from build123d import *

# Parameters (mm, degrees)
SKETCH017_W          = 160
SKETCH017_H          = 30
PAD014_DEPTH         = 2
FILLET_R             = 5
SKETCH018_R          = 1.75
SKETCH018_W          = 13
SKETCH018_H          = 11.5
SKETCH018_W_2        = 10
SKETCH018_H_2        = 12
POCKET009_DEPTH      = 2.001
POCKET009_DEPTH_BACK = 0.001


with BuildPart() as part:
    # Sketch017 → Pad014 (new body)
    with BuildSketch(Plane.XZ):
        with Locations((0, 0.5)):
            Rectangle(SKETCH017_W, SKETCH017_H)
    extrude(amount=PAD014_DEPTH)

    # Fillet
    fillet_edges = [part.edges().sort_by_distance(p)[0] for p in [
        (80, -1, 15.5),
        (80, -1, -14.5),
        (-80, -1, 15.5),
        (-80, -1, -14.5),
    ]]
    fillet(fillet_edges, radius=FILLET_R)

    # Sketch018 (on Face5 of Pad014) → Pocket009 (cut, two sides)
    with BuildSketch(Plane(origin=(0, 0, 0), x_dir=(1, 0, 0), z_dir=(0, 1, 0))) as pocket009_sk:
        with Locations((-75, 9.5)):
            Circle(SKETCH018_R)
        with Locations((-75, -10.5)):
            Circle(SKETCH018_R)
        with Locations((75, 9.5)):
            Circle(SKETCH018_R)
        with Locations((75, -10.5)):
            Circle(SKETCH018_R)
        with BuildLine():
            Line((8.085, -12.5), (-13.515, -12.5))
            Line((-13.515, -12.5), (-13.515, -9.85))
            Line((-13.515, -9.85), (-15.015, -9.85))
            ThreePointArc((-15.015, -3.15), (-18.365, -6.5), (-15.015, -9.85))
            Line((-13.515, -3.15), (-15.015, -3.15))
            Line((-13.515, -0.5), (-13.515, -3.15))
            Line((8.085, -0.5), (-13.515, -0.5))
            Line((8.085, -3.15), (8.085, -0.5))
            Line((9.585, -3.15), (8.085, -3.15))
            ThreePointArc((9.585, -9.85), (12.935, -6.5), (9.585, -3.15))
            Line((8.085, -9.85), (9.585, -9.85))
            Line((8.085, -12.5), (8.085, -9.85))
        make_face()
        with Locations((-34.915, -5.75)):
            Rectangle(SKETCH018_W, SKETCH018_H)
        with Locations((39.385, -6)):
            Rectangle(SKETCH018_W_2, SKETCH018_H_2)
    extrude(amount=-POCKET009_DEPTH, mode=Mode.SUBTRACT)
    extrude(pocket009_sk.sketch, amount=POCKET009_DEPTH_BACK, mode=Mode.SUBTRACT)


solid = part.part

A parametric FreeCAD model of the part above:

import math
import FreeCAD as App
import Part
import Sketcher

V = App.Vector
Q = App.Units.Quantity


def edges_at(feature, points):
    """Names of the edges that pass closest to the given points."""
    edges = feature.Shape.Edges
    near = lambda p: min(range(len(edges)), key=lambda i: edges[i].distToShape(Part.Vertex(*p))[0])
    return sorted({f"Edge{near(p) + 1}" for p in points})


def add_polygon(sketch, points):
    """Adds a closed chain of lines whose ends are joined by coincident constraints."""
    first, n = sketch.GeometryCount, len(points)
    for a, b in zip(points, points[1:] + points[:1]):
        sketch.addGeometry(Part.LineSegment(App.Vector(*a, 0), App.Vector(*b, 0)), False)
    for i in range(n):
        sketch.addConstraint(Sketcher.Constraint("Coincident", first + i, 2, first + (i + 1) % n, 1))

doc = App.newDocument("Part")
body = doc.addObject("PartDesign::Body", "Body")

sketch1 = body.newObject("Sketcher::SketchObject", "Sketch")
sketch1.AttachmentSupport = (doc.getObject("XZ_Plane"), [""])
sketch1.MapMode = "FlatFace"
add_polygon(sketch1, [(-80, 15.5), (-80, -14.5), (80, -14.5), (80, 15.5)])
sketch1.addConstraint([
    Sketcher.Constraint("Vertical", 0),
    Sketcher.Constraint("Horizontal", 1),
    Sketcher.Constraint("Vertical", 2),
    Sketcher.Constraint("Horizontal", 3),
    Sketcher.Constraint("DistanceX", 1, 1, 1, 2, Q("160 mm")),
    Sketcher.Constraint("DistanceY", 0, 2, 0, 1, Q("30 mm")),
    Sketcher.Constraint("DistanceX", 0, 2, -1, 1, Q("80 mm")),
    Sketcher.Constraint("DistanceY", 0, 2, -1, 1, Q("14.5 mm")),
])
pad1 = body.newObject("PartDesign::Pad", "Pad")
pad1.Profile = sketch1
pad1.Length = 2
doc.recompute()

fillet = body.newObject("PartDesign::Fillet", "Fillet")
fillet.Base = (pad1, edges_at(pad1, [
    (80, -1, 15.5),
    (80, -1, -14.5),
    (-80, -1, 15.5),
    (-80, -1, -14.5),
]))
fillet.Radius = 5

sketch2 = body.newObject("Sketcher::SketchObject", "Sketch001")
sketch2.AttachmentSupport = (doc.getObject("XZ_Plane"), [""])
sketch2.MapMode = "FlatFace"
sketch2.addGeometry(Part.Circle(V(-75, -9.5, 0), V(0, 0, 1), 1.75), False)
sketch2.addGeometry(Part.Circle(V(-75, 10.5, 0), V(0, 0, 1), 1.75), False)
sketch2.addGeometry(Part.Circle(V(75, -9.5, 0), V(0, 0, 1), 1.75), False)
sketch2.addGeometry(Part.Circle(V(75, 10.5, 0), V(0, 0, 1), 1.75), False)
sketch2.addGeometry(Part.LineSegment(V(-13.515, 12.5, 0), V(8.085, 12.5, 0)), False)
sketch2.addGeometry(Part.LineSegment(V(8.085, 12.5, 0), V(8.085, 9.85, 0)), False)
sketch2.addGeometry(Part.LineSegment(V(8.085, 9.85, 0), V(9.585, 9.85, 0)), False)
sketch2.addGeometry(Part.ArcOfCircle(Part.Circle(V(9.585, 6.5, 0), V(0, 0, 1), 3.35), math.radians(-90), math.radians(90)), False)
sketch2.addGeometry(Part.LineSegment(V(9.585, 3.15, 0), V(8.085, 3.15, 0)), False)
sketch2.addGeometry(Part.LineSegment(V(8.085, 3.15, 0), V(8.085, 0.5, 0)), False)
sketch2.addGeometry(Part.LineSegment(V(8.085, 0.5, 0), V(-13.515, 0.5, 0)), False)
sketch2.addGeometry(Part.LineSegment(V(-13.515, 0.5, 0), V(-13.515, 3.15, 0)), False)
sketch2.addGeometry(Part.LineSegment(V(-13.515, 3.15, 0), V(-15.015, 3.15, 0)), False)
sketch2.addGeometry(Part.ArcOfCircle(Part.Circle(V(-15.015, 6.5, 0), V(0, 0, 1), 3.35), math.radians(90), math.radians(270)), False)
sketch2.addGeometry(Part.LineSegment(V(-15.015, 9.85, 0), V(-13.515, 9.85, 0)), False)
sketch2.addGeometry(Part.LineSegment(V(-13.515, 9.85, 0), V(-13.515, 12.5, 0)), False)
add_polygon(sketch2, [(-41.415, 0), (-41.415, 11.5), (-28.415, 11.5), (-28.415, 0)])
add_polygon(sketch2, [(34.385, 0), (34.385, 12), (44.385, 12), (44.385, 0)])
sketch2.addConstraint([
    Sketcher.Constraint("Coincident", 4, 2, 5, 1),
    Sketcher.Constraint("Coincident", 5, 2, 6, 1),
    Sketcher.Constraint("Tangent", 6, 2, 7, 2),
    Sketcher.Constraint("Tangent", 7, 1, 8, 1),
    Sketcher.Constraint("Coincident", 8, 2, 9, 1),
    Sketcher.Constraint("Coincident", 9, 2, 10, 1),
    Sketcher.Constraint("Coincident", 10, 2, 11, 1),
    Sketcher.Constraint("Coincident", 11, 2, 12, 1),
    Sketcher.Constraint("Tangent", 12, 2, 13, 2),
    Sketcher.Constraint("Tangent", 13, 1, 14, 1),
    Sketcher.Constraint("Coincident", 14, 2, 15, 1),
    Sketcher.Constraint("Coincident", 15, 2, 4, 1),
    Sketcher.Constraint("Horizontal", 4),
    Sketcher.Constraint("Vertical", 5),
    Sketcher.Constraint("Horizontal", 6),
    Sketcher.Constraint("Horizontal", 8),
    Sketcher.Constraint("Vertical", 9),
    Sketcher.Constraint("Horizontal", 10),
    Sketcher.Constraint("Vertical", 11),
    Sketcher.Constraint("Horizontal", 12),
    Sketcher.Constraint("Horizontal", 14),
    Sketcher.Constraint("Vertical", 15),
    Sketcher.Constraint("Vertical", 16),
    Sketcher.Constraint("Horizontal", 17),
    Sketcher.Constraint("Vertical", 18),
    Sketcher.Constraint("Horizontal", 19),
    Sketcher.Constraint("Vertical", 20),
    Sketcher.Constraint("Horizontal", 21),
    Sketcher.Constraint("Vertical", 22),
    Sketcher.Constraint("Horizontal", 23),
    Sketcher.Constraint("Equal", 0, 1),
    Sketcher.Constraint("Equal", 1, 2),
    Sketcher.Constraint("Equal", 2, 3),
    Sketcher.Constraint("Equal", 7, 13),
    Sketcher.Constraint("Symmetric", 0, 3, 2, 3, -2),
    Sketcher.Constraint("Symmetric", 1, 3, 3, 3, -2),
    Sketcher.Constraint("PointOnObject", 18, 2, -1),
    Sketcher.Constraint("PointOnObject", 22, 2, -1),
    Sketcher.Constraint("Horizontal", 7, 3, 13, 3),
    Sketcher.Constraint("Vertical", 0, 3, 1, 3),
    Sketcher.Constraint("Vertical", 5, 2, 8, 2),
    Sketcher.Constraint("Vertical", 11, 2, 14, 2),
    Sketcher.Constraint("Equal", 8, 12),
    Sketcher.Constraint("Equal", 5, 9),
    Sketcher.Constraint("Diameter", 0, Q("3.5 mm")),
    Sketcher.Constraint("DistanceX", 17, 1, 17, 2, Q("13 mm")),
    Sketcher.Constraint("DistanceX", 21, 1, 21, 2, Q("10 mm")),
    Sketcher.Constraint("DistanceY", 20, 1, 20, 2, Q("12 mm")),
    Sketcher.Constraint("Radius", 7, Q("3.35 mm")),
    Sketcher.Constraint("DistanceX", 4, 1, 4, 2, Q("21.6 mm")),
    Sketcher.Constraint("DistanceX", 6, 1, 6, 2, Q("1.5 mm")),
    Sketcher.Constraint("DistanceY", 16, 1, 16, 2, Q("11.5 mm")),
    Sketcher.Constraint("DistanceX", 0, 3, -1, 1, Q("75 mm")),
    Sketcher.Constraint("DistanceY", 0, 3, 1, 3, Q("20 mm")),
    Sketcher.Constraint("DistanceY", 7, 3, 3, 3, Q("4 mm")),
    Sketcher.Constraint("DistanceY", 7, 3, 4, 2, Q("6 mm")),
    Sketcher.Constraint("DistanceY", 13, 3, 16, 2, Q("5 mm")),
    Sketcher.Constraint("DistanceX", 16, 2, 13, 1, Q("26.4 mm")),
    Sketcher.Constraint("DistanceX", 6, 2, 20, 2, Q("24.8 mm")),
    Sketcher.Constraint("DistanceX", -1, 1, 7, 3, Q("9.585 mm")),
])
pocket1 = body.newObject("PartDesign::Pocket", "Pocket")
pocket1.Profile = sketch2
pocket1.Type = "ThroughAll"
pocket1.Midplane = True

doc.recompute()
